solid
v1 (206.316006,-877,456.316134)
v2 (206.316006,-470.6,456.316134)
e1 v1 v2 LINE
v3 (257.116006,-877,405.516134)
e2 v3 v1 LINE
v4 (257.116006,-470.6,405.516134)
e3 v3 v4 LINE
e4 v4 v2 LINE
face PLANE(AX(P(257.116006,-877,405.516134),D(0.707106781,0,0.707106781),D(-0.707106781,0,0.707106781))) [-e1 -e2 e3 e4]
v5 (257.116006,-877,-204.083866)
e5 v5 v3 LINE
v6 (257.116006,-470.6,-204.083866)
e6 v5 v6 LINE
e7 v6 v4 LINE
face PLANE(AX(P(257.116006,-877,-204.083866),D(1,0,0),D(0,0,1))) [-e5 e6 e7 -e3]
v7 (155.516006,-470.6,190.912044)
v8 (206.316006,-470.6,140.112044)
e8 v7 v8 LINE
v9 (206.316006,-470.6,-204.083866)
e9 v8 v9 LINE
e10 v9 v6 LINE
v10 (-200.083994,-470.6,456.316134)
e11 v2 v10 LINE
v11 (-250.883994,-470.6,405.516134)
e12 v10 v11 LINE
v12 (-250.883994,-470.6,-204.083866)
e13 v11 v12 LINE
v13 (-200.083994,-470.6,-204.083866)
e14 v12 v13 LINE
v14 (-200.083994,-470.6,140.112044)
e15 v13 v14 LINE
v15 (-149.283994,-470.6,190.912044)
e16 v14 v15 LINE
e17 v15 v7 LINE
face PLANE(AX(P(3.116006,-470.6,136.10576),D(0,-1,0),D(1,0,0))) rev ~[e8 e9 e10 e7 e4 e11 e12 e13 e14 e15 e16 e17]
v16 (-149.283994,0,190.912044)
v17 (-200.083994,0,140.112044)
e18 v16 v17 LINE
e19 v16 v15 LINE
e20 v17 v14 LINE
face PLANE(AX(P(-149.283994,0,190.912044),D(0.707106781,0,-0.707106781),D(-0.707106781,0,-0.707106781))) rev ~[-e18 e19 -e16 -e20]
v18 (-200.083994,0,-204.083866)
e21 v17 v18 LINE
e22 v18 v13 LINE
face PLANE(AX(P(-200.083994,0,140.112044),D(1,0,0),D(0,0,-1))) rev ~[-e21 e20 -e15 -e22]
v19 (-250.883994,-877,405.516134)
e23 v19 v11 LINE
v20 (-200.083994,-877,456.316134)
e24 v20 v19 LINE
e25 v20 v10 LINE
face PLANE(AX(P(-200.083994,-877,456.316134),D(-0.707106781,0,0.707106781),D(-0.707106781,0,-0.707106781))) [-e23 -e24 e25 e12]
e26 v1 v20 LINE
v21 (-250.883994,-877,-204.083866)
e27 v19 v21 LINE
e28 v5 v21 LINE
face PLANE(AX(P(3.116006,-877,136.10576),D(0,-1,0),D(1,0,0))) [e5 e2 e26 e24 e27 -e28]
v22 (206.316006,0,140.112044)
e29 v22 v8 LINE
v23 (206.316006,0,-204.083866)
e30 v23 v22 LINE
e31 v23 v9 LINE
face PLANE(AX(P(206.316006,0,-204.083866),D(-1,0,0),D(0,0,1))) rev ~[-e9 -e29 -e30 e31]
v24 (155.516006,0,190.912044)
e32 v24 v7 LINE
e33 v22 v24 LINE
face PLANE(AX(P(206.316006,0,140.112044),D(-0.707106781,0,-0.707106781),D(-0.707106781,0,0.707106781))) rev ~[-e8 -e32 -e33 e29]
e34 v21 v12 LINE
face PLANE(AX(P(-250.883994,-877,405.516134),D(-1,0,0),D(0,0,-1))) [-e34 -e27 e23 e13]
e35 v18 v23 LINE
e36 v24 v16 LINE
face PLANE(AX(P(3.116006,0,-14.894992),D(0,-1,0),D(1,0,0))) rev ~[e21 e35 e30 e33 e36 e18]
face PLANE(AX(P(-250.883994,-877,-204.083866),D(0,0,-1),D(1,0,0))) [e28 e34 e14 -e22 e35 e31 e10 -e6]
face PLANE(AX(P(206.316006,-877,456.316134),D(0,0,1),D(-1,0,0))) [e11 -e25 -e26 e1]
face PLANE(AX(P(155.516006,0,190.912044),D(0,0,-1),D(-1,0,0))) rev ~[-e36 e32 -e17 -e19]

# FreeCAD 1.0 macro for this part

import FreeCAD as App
import Part
import Sketcher
Q = App.Units.Quantity


def add_polygon(sketch, points):
    """Adds a closed chain of lines whose ends are joined by coincident constraints."""
    first, n = sketch.GeometryCount, len(points)
    for a, b in zip(points, points[1:] + points[:1]):
        sketch.addGeometry(Part.LineSegment(App.Vector(*a, 0), App.Vector(*b, 0)), False)
    for i in range(n):
        sketch.addConstraint(Sketcher.Constraint("Coincident", first + i, 2, first + (i + 1) % n, 1))

doc = App.newDocument("Part")
body = doc.addObject("PartDesign::Body", "Body")

# Sketch on XZ plane
sketch1 = body.newObject("Sketcher::SketchObject", "Sketch")
sketch1.AttachmentSupport = (doc.getObject("XZ_Plane"), [""])
sketch1.MapMode = "FlatFace"
add_polygon(sketch1, [(-200.083994, 140.112044), (-200.083994, -204.083866), (206.316006, -204.083866), (206.316006, 140.112044), (155.516006, 190.912044), (-149.283994, 190.912044)])  # lines 0-5
sketch1.addConstraint(Sketcher.Constraint("Vertical", 0))
sketch1.addConstraint(Sketcher.Constraint("Horizontal", 1))
sketch1.addConstraint(Sketcher.Constraint("Vertical", 2))
sketch1.addConstraint(Sketcher.Constraint("Horizontal", 4))
sketch1.addConstraint(Sketcher.Constraint("Perpendicular", 3, 5))
sketch1.addConstraint(Sketcher.Constraint("Horizontal", 2, 2, 5, 2))
sketch1.addConstraint(Sketcher.Constraint("Equal", 3, 5))
sketch1.addConstraint(Sketcher.Constraint("DistanceX", 1, 1, 1, 2, Q("16 in")))
sketch1.addConstraint(Sketcher.Constraint("DistanceX", 4, 2, 4, 1, Q("12 in")))
sketch1.addConstraint(Sketcher.Constraint("DistanceY", 0, 2, 0, 1, 344.19591))
sketch1.addConstraint(Sketcher.Constraint("DistanceX", 0, 2, -1, 1, 200.083994))
sketch1.addConstraint(Sketcher.Constraint("DistanceY", 0, 2, -1, 1, 204.083866))
pad1 = body.newObject("PartDesign::Pad", "Pad")
pad1.Profile = sketch1
pad1.Length = 877

# Sketch on XZ plane
sketch2 = body.newObject("Sketcher::SketchObject", "Sketch001")
sketch2.AttachmentSupport = (doc.getObject("XZ_Plane"), [""])
sketch2.MapMode = "FlatFace"
sketch2.AttachmentOffset = App.Placement(App.Vector(0, 0, 877), App.Rotation())
add_polygon(sketch2, [(-250.883994, 405.516134), (-250.883994, -204.083866), (-200.083994, -204.083866), (-200.083994, 140.112044), (-149.283994, 190.912044), (155.516006, 190.912044), (206.316006, 140.112044), (206.316006, -204.083866), (257.116006, -204.083866), (257.116006, 405.516134), (206.316006, 456.316134), (-200.083994, 456.316134)])  # lines 0-11
sketch2.addConstraint(Sketcher.Constraint("Vertical", 0))
sketch2.addConstraint(Sketcher.Constraint("Horizontal", 1))
sketch2.addConstraint(Sketcher.Constraint("Vertical", 2))
sketch2.addConstraint(Sketcher.Constraint("Horizontal", 4))
sketch2.addConstraint(Sketcher.Constraint("Vertical", 6))
sketch2.addConstraint(Sketcher.Constraint("Horizontal", 7))
sketch2.addConstraint(Sketcher.Constraint("Vertical", 8))
sketch2.addConstraint(Sketcher.Constraint("Horizontal", 10))
sketch2.addConstraint(Sketcher.Constraint("Perpendicular", 3, 5))
sketch2.addConstraint(Sketcher.Constraint("Parallel", 5, 9))
sketch2.addConstraint(Sketcher.Constraint("Perpendicular", 9, 11))
sketch2.addConstraint(Sketcher.Constraint("Horizontal", 2, 2, 5, 2))
sketch2.addConstraint(Sketcher.Constraint("Horizontal", 1, 2, 6, 2))
sketch2.addConstraint(Sketcher.Constraint("Horizontal", 8, 2, 11, 2))
sketch2.addConstraint(Sketcher.Constraint("Vertical", 6, 2, 9, 2))
sketch2.addConstraint(Sketcher.Constraint("Vertical", 2, 2, 10, 2))
sketch2.addConstraint(Sketcher.Constraint("Equal", 1, 7))
sketch2.addConstraint(Sketcher.Constraint("Equal", 5, 9))
sketch2.addConstraint(Sketcher.Constraint("DistanceX", 1, 1, 1, 2, Q("2 in")))
sketch2.addConstraint(Sketcher.Constraint("DistanceX", 4, 1, 4, 2, Q("12 in")))
sketch2.addConstraint(Sketcher.Constraint("DistanceY", 0, 2, 0, 1, Q("24 in")))
sketch2.addConstraint(Sketcher.Constraint("DistanceY", 2, 1, 2, 2, 344.19591))
sketch2.addConstraint(Sketcher.Constraint("DistanceX", 0, 2, -1, 1, 250.883994))
sketch2.addConstraint(Sketcher.Constraint("DistanceY", 0, 2, -1, 1, 204.083866))
pad2 = body.newObject("PartDesign::Pad", "Pad001")
pad2.Profile = sketch2
pad2.Length = Q("16 in")
pad2.Reversed = True

doc.recompute()
